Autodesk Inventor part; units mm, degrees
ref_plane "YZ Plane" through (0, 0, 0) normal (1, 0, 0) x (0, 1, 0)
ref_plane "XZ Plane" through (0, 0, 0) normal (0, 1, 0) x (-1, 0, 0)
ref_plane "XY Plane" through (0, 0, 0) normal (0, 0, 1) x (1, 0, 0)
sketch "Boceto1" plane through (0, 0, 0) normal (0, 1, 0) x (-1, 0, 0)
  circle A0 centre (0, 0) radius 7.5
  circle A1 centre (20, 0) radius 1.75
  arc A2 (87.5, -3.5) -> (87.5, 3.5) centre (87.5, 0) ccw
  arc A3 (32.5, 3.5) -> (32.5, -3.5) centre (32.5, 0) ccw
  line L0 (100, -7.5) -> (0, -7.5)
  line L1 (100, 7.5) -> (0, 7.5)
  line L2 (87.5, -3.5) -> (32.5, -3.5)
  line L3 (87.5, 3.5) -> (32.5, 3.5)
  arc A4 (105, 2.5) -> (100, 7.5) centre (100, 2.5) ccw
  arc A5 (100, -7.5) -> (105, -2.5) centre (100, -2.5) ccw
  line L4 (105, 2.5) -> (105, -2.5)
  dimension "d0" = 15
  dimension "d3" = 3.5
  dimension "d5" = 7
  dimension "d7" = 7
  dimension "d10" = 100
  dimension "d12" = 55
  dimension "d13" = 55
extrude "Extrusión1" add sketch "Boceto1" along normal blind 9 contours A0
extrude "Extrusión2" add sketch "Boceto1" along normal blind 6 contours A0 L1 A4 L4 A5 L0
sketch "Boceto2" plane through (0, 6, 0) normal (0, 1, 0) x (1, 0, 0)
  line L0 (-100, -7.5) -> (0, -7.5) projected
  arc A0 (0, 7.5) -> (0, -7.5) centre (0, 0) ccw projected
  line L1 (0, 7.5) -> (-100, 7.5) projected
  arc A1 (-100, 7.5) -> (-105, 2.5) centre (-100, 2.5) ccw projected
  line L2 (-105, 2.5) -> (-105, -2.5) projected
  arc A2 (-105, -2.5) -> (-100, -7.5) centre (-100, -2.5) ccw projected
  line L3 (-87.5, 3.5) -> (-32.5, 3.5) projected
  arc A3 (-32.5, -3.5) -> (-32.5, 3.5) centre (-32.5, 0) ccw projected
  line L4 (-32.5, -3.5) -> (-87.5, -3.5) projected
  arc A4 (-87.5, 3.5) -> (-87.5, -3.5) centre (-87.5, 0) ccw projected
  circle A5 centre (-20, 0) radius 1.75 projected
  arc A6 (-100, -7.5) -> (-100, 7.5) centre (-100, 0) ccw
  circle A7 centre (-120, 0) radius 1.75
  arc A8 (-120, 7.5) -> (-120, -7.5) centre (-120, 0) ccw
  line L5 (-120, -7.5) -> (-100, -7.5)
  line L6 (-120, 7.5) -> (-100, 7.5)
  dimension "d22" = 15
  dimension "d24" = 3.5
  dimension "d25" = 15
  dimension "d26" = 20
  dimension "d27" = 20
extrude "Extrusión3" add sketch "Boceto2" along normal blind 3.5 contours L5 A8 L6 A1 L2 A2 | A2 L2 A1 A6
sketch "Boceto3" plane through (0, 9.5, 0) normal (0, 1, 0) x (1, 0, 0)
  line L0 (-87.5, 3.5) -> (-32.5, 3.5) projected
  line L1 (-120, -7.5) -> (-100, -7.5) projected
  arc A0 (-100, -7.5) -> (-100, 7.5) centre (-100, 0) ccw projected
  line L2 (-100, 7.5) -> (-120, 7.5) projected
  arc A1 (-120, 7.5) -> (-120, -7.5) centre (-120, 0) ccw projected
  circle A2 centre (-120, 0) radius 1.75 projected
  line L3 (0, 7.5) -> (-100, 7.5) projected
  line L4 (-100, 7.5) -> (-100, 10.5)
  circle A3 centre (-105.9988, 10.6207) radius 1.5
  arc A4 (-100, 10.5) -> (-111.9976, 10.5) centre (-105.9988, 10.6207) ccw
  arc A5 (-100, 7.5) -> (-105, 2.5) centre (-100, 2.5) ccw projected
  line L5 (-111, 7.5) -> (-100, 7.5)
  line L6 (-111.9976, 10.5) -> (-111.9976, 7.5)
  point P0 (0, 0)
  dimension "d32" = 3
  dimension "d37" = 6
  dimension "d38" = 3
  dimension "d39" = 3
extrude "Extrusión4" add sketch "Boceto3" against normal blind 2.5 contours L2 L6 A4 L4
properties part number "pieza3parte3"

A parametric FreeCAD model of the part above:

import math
import FreeCAD as App
import Part
import Sketcher
Q = App.Units.Quantity

doc = App.newDocument("Part")
body = doc.addObject("PartDesign::Body", "Body")

# Sketch on XZ plane
sketch1 = body.newObject("Sketcher::SketchObject", "Sketch")
sketch1.AttachmentSupport = (doc.getObject("XZ_Plane"), [""])
sketch1.MapMode = "FlatFace"
sketch1.addGeometry(Part.Circle(App.Vector(0, 0, 0), App.Vector(0, 0, 1), 8), False)
sketch1.addConstraint(Sketcher.Constraint("Coincident", 0, 3, -1, 1))
sketch1.addConstraint(Sketcher.Constraint("Diameter", 0, Q("15 mm")))
pad1 = body.newObject("PartDesign::Pad", "Pad")
pad1.Profile = sketch1
pad1.Length = 9
pad1.Reversed = True

# Sketch on XZ plane
sketch2 = body.newObject("Sketcher::SketchObject", "Sketch001")
sketch2.AttachmentSupport = (doc.getObject("XZ_Plane"), [""])
sketch2.MapMode = "FlatFace"
sketch2.addGeometry(Part.ArcOfCircle(Part.Circle(App.Vector(0, 0, 0), App.Vector(0, 0, 1), 7.5), math.radians(90), math.radians(270)), False)
sketch2.addGeometry(Part.LineSegment(App.Vector(0, -7.5, 0), App.Vector(-100, -7.5, 0)), False)
sketch2.addGeometry(Part.ArcOfCircle(Part.Circle(App.Vector(-100, -2.5, 0), App.Vector(0, 0, 1), 5), math.radians(180), math.radians(270)), False)
sketch2.addGeometry(Part.LineSegment(App.Vector(-105, -2.5, 0), App.Vector(-105, 2.5, 0)), False)
sketch2.addGeometry(Part.ArcOfCircle(Part.Circle(App.Vector(-100, 2.5, 0), App.Vector(0, 0, 1), 5), math.radians(90), math.radians(180)), False)
sketch2.addGeometry(Part.LineSegment(App.Vector(-100, 7.5, 0), App.Vector(0, 7.5, 0)), False)
sketch2.addGeometry(Part.Circle(App.Vector(-20, 0, 0), App.Vector(0, 0, 1), 1.8), False)
sketch2.addGeometry(Part.ArcOfCircle(Part.Circle(App.Vector(-87.5, 0, 0), App.Vector(0, 0, 1), 3.5), math.radians(90), math.radians(270)), False)
sketch2.addGeometry(Part.LineSegment(App.Vector(-87.5, -3.5, 0), App.Vector(-32.5, -3.5, 0)), False)
sketch2.addGeometry(Part.ArcOfCircle(Part.Circle(App.Vector(-32.5, 0, 0), App.Vector(0, 0, 1), 3.5), math.radians(-90), math.radians(90)), False)
sketch2.addGeometry(Part.LineSegment(App.Vector(-32.5, 3.5, 0), App.Vector(-87.5, 3.5, 0)), False)
sketch2.addConstraint(Sketcher.Constraint("Tangent", 0, 2, 1, 1))
sketch2.addConstraint(Sketcher.Constraint("Tangent", 1, 2, 2, 2))
sketch2.addConstraint(Sketcher.Constraint("Tangent", 2, 1, 3, 1))
sketch2.addConstraint(Sketcher.Constraint("Tangent", 3, 2, 4, 2))
sketch2.addConstraint(Sketcher.Constraint("Tangent", 4, 1, 5, 1))
sketch2.addConstraint(Sketcher.Constraint("Tangent", 5, 2, 0, 1))
sketch2.addConstraint(Sketcher.Constraint("Tangent", 7, 2, 8, 1))
sketch2.addConstraint(Sketcher.Constraint("Tangent", 8, 2, 9, 1))
sketch2.addConstraint(Sketcher.Constraint("Tangent", 9, 2, 10, 1))
sketch2.addConstraint(Sketcher.Constraint("Tangent", 10, 2, 7, 1))
sketch2.addConstraint(Sketcher.Constraint("Horizontal", 1))
sketch2.addConstraint(Sketcher.Constraint("Vertical", 3))
sketch2.addConstraint(Sketcher.Constraint("Horizontal", 5))
sketch2.addConstraint(Sketcher.Constraint("Horizontal", 8))
sketch2.addConstraint(Sketcher.Constraint("Horizontal", 10))
sketch2.addConstraint(Sketcher.Constraint("Coincident", 0, 3, -1, 1))
sketch2.addConstraint(Sketcher.Constraint("Equal", 2, 4))
sketch2.addConstraint(Sketcher.Constraint("PointOnObject", 6, 3, -1))
sketch2.addConstraint(Sketcher.Constraint("PointOnObject", 7, 3, -1))
sketch2.addConstraint(Sketcher.Constraint("Diameter", 6, Q("3.5 mm")))
sketch2.addConstraint(Sketcher.Constraint("Radius", 0, Q("7.5 mm")))
sketch2.addConstraint(Sketcher.Constraint("Radius", 7, Q("3.5 mm")))
sketch2.addConstraint(Sketcher.Constraint("DistanceX", 1, 2, 1, 1, Q("100 mm")))
sketch2.addConstraint(Sketcher.Constraint("DistanceX", 8, 1, 8, 2, Q("55 mm")))
sketch2.addConstraint(Sketcher.Constraint("Radius", 2, Q("5 mm")))
sketch2.addConstraint(Sketcher.Constraint("DistanceX", 6, 3, -1, 1, Q("20 mm")))
sketch2.addConstraint(Sketcher.Constraint("DistanceX", 7, 3, -1, 1, Q("87.5 mm")))
pad2 = body.newObject("PartDesign::Pad", "Pad001")
pad2.Profile = sketch2
pad2.Length = 6
pad2.Reversed = True

# Sketch on XZ plane
sketch3 = body.newObject("Sketcher::SketchObject", "Sketch002")
sketch3.AttachmentSupport = (doc.getObject("XZ_Plane"), [""])
sketch3.MapMode = "FlatFace"
sketch3.AttachmentOffset = App.Placement(App.Vector(0, 0, -6), App.Rotation())
sketch3.addGeometry(Part.LineSegment(App.Vector(-120, 7.5, 0), App.Vector(-100, 7.5, 0)), False)
sketch3.addGeometry(Part.ArcOfCircle(Part.Circle(App.Vector(-100, 0, 0), App.Vector(0, 0, 1), 7.5), math.radians(-90), math.radians(90)), False)
sketch3.addGeometry(Part.LineSegment(App.Vector(-100, -7.5, 0), App.Vector(-120, -7.5, 0)), False)
sketch3.addGeometry(Part.ArcOfCircle(Part.Circle(App.Vector(-120, 0, 0), App.Vector(0, 0, 1), 7.5), math.radians(90), math.radians(270)), False)
sketch3.addGeometry(Part.Circle(App.Vector(-120, 0, 0), App.Vector(0, 0, 1), 1.8), False)
sketch3.addConstraint(Sketcher.Constraint("Tangent", 0, 2, 1, 2))
sketch3.addConstraint(Sketcher.Constraint("Tangent", 1, 1, 2, 1))
sketch3.addConstraint(Sketcher.Constraint("Tangent", 2, 2, 3, 2))
sketch3.addConstraint(Sketcher.Constraint("Tangent", 3, 1, 0, 1))
sketch3.addConstraint(Sketcher.Constraint("Horizontal", 0))
sketch3.addConstraint(Sketcher.Constraint("Horizontal", 2))
sketch3.addConstraint(Sketcher.Constraint("Coincident", 4, 3, 3, 3))
sketch3.addConstraint(Sketcher.Constraint("PointOnObject", 1, 3, -1))
sketch3.addConstraint(Sketcher.Constraint("Diameter", 4, Q("3.5 mm")))
sketch3.addConstraint(Sketcher.Constraint("Radius", 1, Q("7.5 mm")))
sketch3.addConstraint(Sketcher.Constraint("DistanceX", 0, 1, 0, 2, Q("20 mm")))
sketch3.addConstraint(Sketcher.Constraint("DistanceX", 1, 3, -1, 1, Q("100 mm")))
pad3 = body.newObject("PartDesign::Pad", "Pad002")
pad3.Profile = sketch3
pad3.Length = 3.5
pad3.Reversed = True

# Sketch on XZ plane
sketch4 = body.newObject("Sketcher::SketchObject", "Sketch003")
sketch4.AttachmentSupport = (doc.getObject("XZ_Plane"), [""])
sketch4.MapMode = "FlatFace"
sketch4.AttachmentOffset = App.Placement(App.Vector(0, 0, -9.5), App.Rotation())
sketch4.addGeometry(Part.LineSegment(App.Vector(-112, -7.5, 0), App.Vector(-100, -7.5, 0)), False)
sketch4.addGeometry(Part.LineSegment(App.Vector(-100, -7.5, 0), App.Vector(-100, -10.5, 0)), False)
sketch4.addGeometry(Part.ArcOfCircle(Part.Circle(App.Vector(-106, -10.6, 0), App.Vector(0, 0, 1), 6), math.radians(179), math.radians(361)), False)
sketch4.addGeometry(Part.LineSegment(App.Vector(-112, -10.5, 0), App.Vector(-112, -7.5, 0)), False)
sketch4.addGeometry(Part.Circle(App.Vector(-106, -10.6, 0), App.Vector(0, 0, 1), 1.5), False)
sketch4.addConstraint(Sketcher.Constraint("Coincident", 0, 2, 1, 1))
sketch4.addConstraint(Sketcher.Constraint("Coincident", 1, 2, 2, 2))
sketch4.addConstraint(Sketcher.Constraint("Coincident", 2, 1, 3, 1))
sketch4.addConstraint(Sketcher.Constraint("Coincident", 3, 2, 0, 1))
sketch4.addConstraint(Sketcher.Constraint("Horizontal", 0))
sketch4.addConstraint(Sketcher.Constraint("Vertical", 1))
sketch4.addConstraint(Sketcher.Constraint("Vertical", 3))
sketch4.addConstraint(Sketcher.Constraint("Coincident", 4, 3, 2, 3))
sketch4.addConstraint(Sketcher.Constraint("Horizontal", 1, 2, 2, 1))
sketch4.addConstraint(Sketcher.Constraint("Diameter", 4, Q("3 mm")))
sketch4.addConstraint(Sketcher.Constraint("Radius", 2, Q("6 mm")))
sketch4.addConstraint(Sketcher.Constraint("DistanceY", 1, 2, 1, 1, Q("3 mm")))
sketch4.addConstraint(Sketcher.Constraint("DistanceX", 0, 2, -1, 1, Q("100 mm")))
sketch4.addConstraint(Sketcher.Constraint("DistanceY", 0, 2, -1, 1, Q("7.5 mm")))
sketch4.addConstraint(Sketcher.Constraint("DistanceX", 0, 1, 0, 2, Q("11.9976 mm")))
pad4 = body.newObject("PartDesign::Pad", "Pad003")
pad4.Profile = sketch4
pad4.Length = 2.5

doc.recompute()
